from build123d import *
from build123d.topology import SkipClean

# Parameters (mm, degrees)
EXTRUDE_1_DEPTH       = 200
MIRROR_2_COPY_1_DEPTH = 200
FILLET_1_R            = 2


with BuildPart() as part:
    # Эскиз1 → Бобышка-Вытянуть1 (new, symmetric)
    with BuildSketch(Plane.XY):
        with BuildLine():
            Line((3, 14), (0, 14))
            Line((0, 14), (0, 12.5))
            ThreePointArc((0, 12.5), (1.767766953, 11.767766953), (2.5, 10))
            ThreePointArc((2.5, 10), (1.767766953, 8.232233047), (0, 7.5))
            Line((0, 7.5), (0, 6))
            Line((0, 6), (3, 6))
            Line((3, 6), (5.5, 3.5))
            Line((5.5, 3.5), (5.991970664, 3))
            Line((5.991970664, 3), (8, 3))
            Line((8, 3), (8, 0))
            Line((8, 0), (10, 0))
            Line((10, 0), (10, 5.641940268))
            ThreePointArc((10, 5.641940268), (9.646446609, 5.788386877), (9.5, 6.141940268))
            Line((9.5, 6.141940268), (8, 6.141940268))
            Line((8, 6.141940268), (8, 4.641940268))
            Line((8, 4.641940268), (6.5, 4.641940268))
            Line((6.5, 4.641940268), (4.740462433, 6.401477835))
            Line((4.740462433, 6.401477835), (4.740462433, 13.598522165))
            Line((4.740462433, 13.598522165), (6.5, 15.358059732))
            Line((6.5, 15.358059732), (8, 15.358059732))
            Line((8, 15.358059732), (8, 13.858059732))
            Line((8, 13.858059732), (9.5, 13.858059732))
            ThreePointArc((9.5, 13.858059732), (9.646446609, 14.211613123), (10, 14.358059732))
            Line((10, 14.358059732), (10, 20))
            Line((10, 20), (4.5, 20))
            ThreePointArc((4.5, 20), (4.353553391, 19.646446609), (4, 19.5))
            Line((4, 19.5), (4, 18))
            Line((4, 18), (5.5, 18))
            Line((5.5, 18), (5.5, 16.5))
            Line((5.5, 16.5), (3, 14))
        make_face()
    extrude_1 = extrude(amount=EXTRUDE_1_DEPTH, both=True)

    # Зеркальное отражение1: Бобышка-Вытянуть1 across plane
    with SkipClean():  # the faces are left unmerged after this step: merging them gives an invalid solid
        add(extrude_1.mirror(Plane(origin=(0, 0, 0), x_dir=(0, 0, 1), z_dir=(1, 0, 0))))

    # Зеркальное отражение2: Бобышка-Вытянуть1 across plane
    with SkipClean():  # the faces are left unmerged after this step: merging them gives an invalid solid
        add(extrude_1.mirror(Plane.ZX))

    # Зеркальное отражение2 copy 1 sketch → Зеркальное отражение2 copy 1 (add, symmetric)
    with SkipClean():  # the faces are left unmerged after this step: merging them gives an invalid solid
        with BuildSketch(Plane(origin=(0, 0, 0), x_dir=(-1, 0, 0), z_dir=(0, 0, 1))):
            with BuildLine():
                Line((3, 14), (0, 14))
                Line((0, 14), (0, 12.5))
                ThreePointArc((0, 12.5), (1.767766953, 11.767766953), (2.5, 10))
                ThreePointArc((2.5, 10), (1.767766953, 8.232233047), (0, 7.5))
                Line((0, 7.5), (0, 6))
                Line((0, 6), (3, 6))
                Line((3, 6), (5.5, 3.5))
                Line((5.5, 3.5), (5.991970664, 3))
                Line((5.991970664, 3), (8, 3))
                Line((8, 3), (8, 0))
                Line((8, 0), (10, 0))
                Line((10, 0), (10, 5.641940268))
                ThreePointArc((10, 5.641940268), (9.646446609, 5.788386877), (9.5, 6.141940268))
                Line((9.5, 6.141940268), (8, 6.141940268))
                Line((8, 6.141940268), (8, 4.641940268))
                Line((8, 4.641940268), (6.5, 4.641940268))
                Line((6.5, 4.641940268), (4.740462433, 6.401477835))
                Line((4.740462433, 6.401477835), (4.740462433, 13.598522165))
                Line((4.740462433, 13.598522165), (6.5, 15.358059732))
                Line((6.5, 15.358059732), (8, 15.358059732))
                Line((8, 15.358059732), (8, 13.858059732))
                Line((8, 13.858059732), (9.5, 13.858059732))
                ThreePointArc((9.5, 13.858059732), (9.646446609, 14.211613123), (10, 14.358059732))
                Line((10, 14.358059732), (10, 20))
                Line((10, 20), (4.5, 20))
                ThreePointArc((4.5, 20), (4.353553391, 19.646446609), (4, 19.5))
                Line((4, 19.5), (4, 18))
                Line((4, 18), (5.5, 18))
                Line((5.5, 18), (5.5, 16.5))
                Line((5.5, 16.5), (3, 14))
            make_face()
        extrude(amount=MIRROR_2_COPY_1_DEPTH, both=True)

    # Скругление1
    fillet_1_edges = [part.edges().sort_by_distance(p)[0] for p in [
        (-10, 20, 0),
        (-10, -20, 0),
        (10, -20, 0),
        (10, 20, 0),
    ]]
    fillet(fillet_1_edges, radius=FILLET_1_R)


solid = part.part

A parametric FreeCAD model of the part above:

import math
import FreeCAD as App
import Part
import Sketcher
from FreeCAD import Vector


def edges_at(feature, points):
    """Names of the edges that pass closest to the given points."""
    edges = feature.Shape.Edges
    near = lambda p: min(range(len(edges)), key=lambda i: edges[i].distToShape(Part.Vertex(*p))[0])
    return sorted({f"Edge{near(p) + 1}" for p in points})

doc = App.newDocument("Part")
body = doc.addObject("PartDesign::Body", "Body")

# Sketch on XY plane
sketch1 = body.newObject("Sketcher::SketchObject", "Sketch")
sketch1.AttachmentSupport = (doc.getObject("XY_Plane"), [""])
sketch1.MapMode = "FlatFace"
sketch1.addGeometry([
    Part.LineSegment(Vector(3, 14, 0), Vector(0, 14, 0)),  # 0
    Part.LineSegment(Vector(0, 14, 0), Vector(0, 12.5, 0)),  # 1
    Part.ArcOfCircle(Part.Circle(Vector(0, 10, 0), Vector(0, 0, 1), 2.5), math.radians(0), math.radians(90)),  # 2
    Part.ArcOfCircle(Part.Circle(Vector(0, 10, 0), Vector(0, 0, 1), 2.5), math.radians(-90), math.radians(0)),  # 3
    Part.LineSegment(Vector(0, 7.5, 0), Vector(0, 6, 0)),  # 4
    Part.LineSegment(Vector(0, 6, 0), Vector(3, 6, 0)),  # 5
    Part.LineSegment(Vector(3, 6, 0), Vector(5.5, 3.5, 0)),  # 6
    Part.LineSegment(Vector(5.5, 3.5, 0), Vector(5.99, 3, 0)),  # 7
    Part.LineSegment(Vector(5.99, 3, 0), Vector(8, 3, 0)),  # 8
    Part.LineSegment(Vector(8, 3, 0), Vector(8, 0, 0)),  # 9
    Part.LineSegment(Vector(8, 0, 0), Vector(10, 0, 0)),  # 10
    Part.LineSegment(Vector(10, 0, 0), Vector(10, 5.64, 0)),  # 11
    Part.ArcOfCircle(Part.Circle(Vector(10, 6.14, 0), Vector(0, 0, 1), 0.5), math.radians(180), math.radians(270)),  # 12
    Part.LineSegment(Vector(9.5, 6.14, 0), Vector(8, 6.14, 0)),  # 13
    Part.LineSegment(Vector(8, 6.14, 0), Vector(8, 4.64, 0)),  # 14
    Part.LineSegment(Vector(8, 4.64, 0), Vector(6.5, 4.64, 0)),  # 15
    Part.LineSegment(Vector(6.5, 4.64, 0), Vector(4.74, 6.4, 0)),  # 16
    Part.LineSegment(Vector(4.74, 6.4, 0), Vector(4.74, 13.6, 0)),  # 17
    Part.LineSegment(Vector(4.74, 13.6, 0), Vector(6.5, 15.36, 0)),  # 18
    Part.LineSegment(Vector(6.5, 15.36, 0), Vector(8, 15.36, 0)),  # 19
    Part.LineSegment(Vector(8, 15.36, 0), Vector(8, 13.86, 0)),  # 20
    Part.LineSegment(Vector(8, 13.86, 0), Vector(9.5, 13.86, 0)),  # 21
    Part.ArcOfCircle(Part.Circle(Vector(10, 13.86, 0), Vector(0, 0, 1), 0.5), math.radians(90), math.radians(180)),  # 22
    Part.LineSegment(Vector(10, 14.36, 0), Vector(10, 20, 0)),  # 23
    Part.LineSegment(Vector(10, 20, 0), Vector(4.5, 20, 0)),  # 24
    Part.ArcOfCircle(Part.Circle(Vector(4, 20, 0), Vector(0, 0, 1), 0.5), math.radians(-90), math.radians(0)),  # 25
    Part.LineSegment(Vector(4, 19.5, 0), Vector(4, 18, 0)),  # 26
    Part.LineSegment(Vector(4, 18, 0), Vector(5.5, 18, 0)),  # 27
    Part.LineSegment(Vector(5.5, 18, 0), Vector(5.5, 16.5, 0)),  # 28
    Part.LineSegment(Vector(5.5, 16.5, 0), Vector(3, 14, 0)),  # 29
], False)
sketch1.addConstraint([
    Sketcher.Constraint("Coincident", 0, 2, 1, 1),
    Sketcher.Constraint("Coincident", 1, 2, 2, 2),
    Sketcher.Constraint("Tangent", 2, 1, 3, 2),
    Sketcher.Constraint("Coincident", 3, 1, 4, 1),
    Sketcher.Constraint("Coincident", 4, 2, 5, 1),
    Sketcher.Constraint("Coincident", 5, 2, 6, 1),
    Sketcher.Constraint("Coincident", 6, 2, 7, 1),
    Sketcher.Constraint("Coincident", 7, 2, 8, 1),
    Sketcher.Constraint("Coincident", 8, 2, 9, 1),
    Sketcher.Constraint("Coincident", 9, 2, 10, 1),
    Sketcher.Constraint("Coincident", 10, 2, 11, 1),
    Sketcher.Constraint("Coincident", 11, 2, 12, 2),
    Sketcher.Constraint("Coincident", 12, 1, 13, 1),
    Sketcher.Constraint("Coincident", 13, 2, 14, 1),
    Sketcher.Constraint("Coincident", 14, 2, 15, 1),
    Sketcher.Constraint("Coincident", 15, 2, 16, 1),
    Sketcher.Constraint("Coincident", 16, 2, 17, 1),
    Sketcher.Constraint("Coincident", 17, 2, 18, 1),
    Sketcher.Constraint("Coincident", 18, 2, 19, 1),
    Sketcher.Constraint("Coincident", 19, 2, 20, 1),
    Sketcher.Constraint("Coincident", 20, 2, 21, 1),
    Sketcher.Constraint("Coincident", 21, 2, 22, 2),
    Sketcher.Constraint("Coincident", 22, 1, 23, 1),
    Sketcher.Constraint("Coincident", 23, 2, 24, 1),
    Sketcher.Constraint("Coincident", 24, 2, 25, 2),
    Sketcher.Constraint("Coincident", 25, 1, 26, 1),
    Sketcher.Constraint("Coincident", 26, 2, 27, 1),
    Sketcher.Constraint("Coincident", 27, 2, 28, 1),
    Sketcher.Constraint("Coincident", 28, 2, 29, 1),
    Sketcher.Constraint("Coincident", 29, 2, 0, 1),
    Sketcher.Constraint("Horizontal", 0),
    Sketcher.Constraint("Vertical", 1),
    Sketcher.Constraint("Vertical", 4),
    Sketcher.Constraint("Horizontal", 5),
    Sketcher.Constraint("Horizontal", 8),
    Sketcher.Constraint("Vertical", 9),
    Sketcher.Constraint("Horizontal", 10),
    Sketcher.Constraint("Vertical", 11),
    Sketcher.Constraint("Horizontal", 13),
    Sketcher.Constraint("Vertical", 14),
    Sketcher.Constraint("Horizontal", 15),
    Sketcher.Constraint("Vertical", 17),
    Sketcher.Constraint("Horizontal", 19),
    Sketcher.Constraint("Vertical", 20),
    Sketcher.Constraint("Horizontal", 21),
    Sketcher.Constraint("Vertical", 23),
    Sketcher.Constraint("Horizontal", 24),
    Sketcher.Constraint("Vertical", 26),
    Sketcher.Constraint("Horizontal", 27),
    Sketcher.Constraint("Vertical", 28),
    Sketcher.Constraint("Equal", 2, 3),
    Sketcher.Constraint("Equal", 12, 22),
    Sketcher.Constraint("Equal", 22, 25),
    Sketcher.Constraint("PointOnObject", 2, 3, -2),
    Sketcher.Constraint("PointOnObject", 0, 2, -2),
    Sketcher.Constraint("PointOnObject", 3, 1, -2),
    Sketcher.Constraint("PointOnObject", 9, 2, -1),
    Sketcher.Constraint("Parallel", 6, 16),
    Sketcher.Constraint("Perpendicular", 16, 18),
    Sketcher.Constraint("Parallel", 18, 29),
    Sketcher.Constraint("Horizontal", 3, 3, 2, 1),
    Sketcher.Constraint("Horizontal", 22, 3, 20, 2),
    Sketcher.Constraint("Horizontal", 25, 3, 23, 2),
    Sketcher.Constraint("Vertical", 12, 3, 22, 3),
    Sketcher.Constraint("Vertical", 22, 3, 10, 2),
    Sketcher.Constraint("Vertical", 9, 2, 13, 2),
    Sketcher.Constraint("Vertical", 15, 2, 18, 2),
    Sketcher.Constraint("Vertical", 14, 2, 19, 2),
    Sketcher.Constraint("Vertical", 11, 2, 22, 1),
    Sketcher.Constraint("Vertical", 6, 2, 27, 2),
    Sketcher.Constraint("Vertical", 5, 2, 29, 2),
    Sketcher.Constraint("Equal", 13, 15),
    Sketcher.Constraint("Equal", 21, 27),
    Sketcher.Constraint("Equal", 27, 1),
    Sketcher.Constraint("Equal", 1, 4),
    Sketcher.Constraint("Equal", 5, 9),
    Sketcher.Constraint("Equal", 4, 14),
    Sketcher.Constraint("Equal", 14, 20),
    Sketcher.Constraint("Equal", 11, 23),
    Sketcher.Constraint("Equal", 20, 26),
    Sketcher.Constraint("Equal", 26, 28),
    Sketcher.Constraint("Equal", 16, 18),
    Sketcher.Constraint("Radius", 2, 2.5),
    Sketcher.Constraint("Radius", 12, 0.5),
    Sketcher.Constraint("DistanceX", 0, 2, 0, 1, 3.0),
    Sketcher.Constraint("DistanceX", 10, 1, 10, 2, 2.0),
    Sketcher.Constraint("DistanceX", 24, 2, 24, 1, 5.5),
    Sketcher.Constraint("DistanceY", -1, 1, 2, 3, 10.0),
    Sketcher.Constraint("DistanceX", -1, 1, 12, 3, 10.0),
    Sketcher.Constraint("DistanceY", -1, 1, 25, 3, 20.0),
    Sketcher.Constraint("DistanceY", 14, 2, 11, 2, 1.0),
    Sketcher.Constraint("DistanceX", 8, 1, 8, 2, 2.008029),
    Sketcher.Constraint("DistanceY", 11, 1, 11, 2, 5.64194),
    Sketcher.Constraint("Distance", 16, 2.488362),
])
pad1 = body.newObject("PartDesign::Pad", "Pad")
pad1.Profile = sketch1
pad1.Length = 400
pad1.Midplane = True
doc.recompute()

mirrored = body.newObject("PartDesign::Mirrored", "Mirrored")
mirrored.Originals = [pad1]
mirrored.MirrorPlane = (doc.getObject("YZ_Plane"), [""])
body.Tip = mirrored
doc.recompute()

mirrored2 = body.newObject("PartDesign::Mirrored", "Mirrored001")
mirrored2.Originals = [pad1]
mirrored2.MirrorPlane = (doc.getObject("XZ_Plane"), [""])
body.Tip = mirrored2

# Sketch on XY plane
sketch2 = body.newObject("Sketcher::SketchObject", "Sketch001")
sketch2.AttachmentSupport = (doc.getObject("XY_Plane"), [""])
sketch2.MapMode = "FlatFace"
sketch2.addGeometry([
    Part.LineSegment(Vector(-3, -14, 0), Vector(0, -14, 0)),  # 0
    Part.LineSegment(Vector(0, -14, 0), Vector(0, -12.5, 0)),  # 1
    Part.ArcOfCircle(Part.Circle(Vector(0, -10, 0), Vector(0, 0, 1), 2.5), math.radians(180), math.radians(270)),  # 2
    Part.ArcOfCircle(Part.Circle(Vector(0, -10, 0), Vector(0, 0, 1), 2.5), math.radians(90), math.radians(180)),  # 3
    Part.LineSegment(Vector(0, -7.5, 0), Vector(0, -6, 0)),  # 4
    Part.LineSegment(Vector(0, -6, 0), Vector(-3, -6, 0)),  # 5
    Part.LineSegment(Vector(-3, -6, 0), Vector(-5.5, -3.5, 0)),  # 6
    Part.LineSegment(Vector(-5.5, -3.5, 0), Vector(-5.99, -3, 0)),  # 7
    Part.LineSegment(Vector(-5.99, -3, 0), Vector(-8, -3, 0)),  # 8
    Part.LineSegment(Vector(-8, -3, 0), Vector(-8, 0, 0)),  # 9
    Part.LineSegment(Vector(-8, 0, 0), Vector(-10, 0, 0)),  # 10
    Part.LineSegment(Vector(-10, 0, 0), Vector(-10, -5.64, 0)),  # 11
    Part.ArcOfCircle(Part.Circle(Vector(-10, -6.14, 0), Vector(0, 0, 1), 0.5), math.radians(0), math.radians(90)),  # 12
    Part.LineSegment(Vector(-9.5, -6.14, 0), Vector(-8, -6.14, 0)),  # 13
    Part.LineSegment(Vector(-8, -6.14, 0), Vector(-8, -4.64, 0)),  # 14
    Part.LineSegment(Vector(-8, -4.64, 0), Vector(-6.5, -4.64, 0)),  # 15
    Part.LineSegment(Vector(-6.5, -4.64, 0), Vector(-4.74, -6.4, 0)),  # 16
    Part.LineSegment(Vector(-4.74, -6.4, 0), Vector(-4.74, -13.6, 0)),  # 17
    Part.LineSegment(Vector(-4.74, -13.6, 0), Vector(-6.5, -15.36, 0)),  # 18
    Part.LineSegment(Vector(-6.5, -15.36, 0), Vector(-8, -15.36, 0)),  # 19
    Part.LineSegment(Vector(-8, -15.36, 0), Vector(-8, -13.86, 0)),  # 20
    Part.LineSegment(Vector(-8, -13.86, 0), Vector(-9.5, -13.86, 0)),  # 21
    Part.ArcOfCircle(Part.Circle(Vector(-10, -13.86, 0), Vector(0, 0, 1), 0.5), math.radians(-90), math.radians(0)),  # 22
    Part.LineSegment(Vector(-10, -14.36, 0), Vector(-10, -20, 0)),  # 23
    Part.LineSegment(Vector(-10, -20, 0), Vector(-4.5, -20, 0)),  # 24
    Part.ArcOfCircle(Part.Circle(Vector(-4, -20, 0), Vector(0, 0, 1), 0.5), math.radians(90), math.radians(180)),  # 25
    Part.LineSegment(Vector(-4, -19.5, 0), Vector(-4, -18, 0)),  # 26
    Part.LineSegment(Vector(-4, -18, 0), Vector(-5.5, -18, 0)),  # 27
    Part.LineSegment(Vector(-5.5, -18, 0), Vector(-5.5, -16.5, 0)),  # 28
    Part.LineSegment(Vector(-5.5, -16.5, 0), Vector(-3, -14, 0)),  # 29
], False)
sketch2.addConstraint([
    Sketcher.Constraint("Coincident", 0, 2, 1, 1),
    Sketcher.Constraint("Coincident", 1, 2, 2, 2),
    Sketcher.Constraint("Tangent", 2, 1, 3, 2),
    Sketcher.Constraint("Coincident", 3, 1, 4, 1),
    Sketcher.Constraint("Coincident", 4, 2, 5, 1),
    Sketcher.Constraint("Coincident", 5, 2, 6, 1),
    Sketcher.Constraint("Coincident", 6, 2, 7, 1),
    Sketcher.Constraint("Coincident", 7, 2, 8, 1),
    Sketcher.Constraint("Coincident", 8, 2, 9, 1),
    Sketcher.Constraint("Coincident", 9, 2, 10, 1),
    Sketcher.Constraint("Coincident", 10, 2, 11, 1),
    Sketcher.Constraint("Coincident", 11, 2, 12, 2),
    Sketcher.Constraint("Coincident", 12, 1, 13, 1),
    Sketcher.Constraint("Coincident", 13, 2, 14, 1),
    Sketcher.Constraint("Coincident", 14, 2, 15, 1),
    Sketcher.Constraint("Coincident", 15, 2, 16, 1),
    Sketcher.Constraint("Coincident", 16, 2, 17, 1),
    Sketcher.Constraint("Coincident", 17, 2, 18, 1),
    Sketcher.Constraint("Coincident", 18, 2, 19, 1),
    Sketcher.Constraint("Coincident", 19, 2, 20, 1),
    Sketcher.Constraint("Coincident", 20, 2, 21, 1),
    Sketcher.Constraint("Coincident", 21, 2, 22, 2),
    Sketcher.Constraint("Coincident", 22, 1, 23, 1),
    Sketcher.Constraint("Coincident", 23, 2, 24, 1),
    Sketcher.Constraint("Coincident", 24, 2, 25, 2),
    Sketcher.Constraint("Coincident", 25, 1, 26, 1),
    Sketcher.Constraint("Coincident", 26, 2, 27, 1),
    Sketcher.Constraint("Coincident", 27, 2, 28, 1),
    Sketcher.Constraint("Coincident", 28, 2, 29, 1),
    Sketcher.Constraint("Coincident", 29, 2, 0, 1),
    Sketcher.Constraint("Horizontal", 0),
    Sketcher.Constraint("Vertical", 1),
    Sketcher.Constraint("Vertical", 4),
    Sketcher.Constraint("Horizontal", 5),
    Sketcher.Constraint("Horizontal", 8),
    Sketcher.Constraint("Vertical", 9),
    Sketcher.Constraint("Horizontal", 10),
    Sketcher.Constraint("Vertical", 11),
    Sketcher.Constraint("Horizontal", 13),
    Sketcher.Constraint("Vertical", 14),
    Sketcher.Constraint("Horizontal", 15),
    Sketcher.Constraint("Vertical", 17),
    Sketcher.Constraint("Horizontal", 19),
    Sketcher.Constraint("Vertical", 20),
    Sketcher.Constraint("Horizontal", 21),
    Sketcher.Constraint("Vertical", 23),
    Sketcher.Constraint("Horizontal", 24),
    Sketcher.Constraint("Vertical", 26),
    Sketcher.Constraint("Horizontal", 27),
    Sketcher.Constraint("Vertical", 28),
    Sketcher.Constraint("Equal", 2, 3),
    Sketcher.Constraint("Equal", 12, 22),
    Sketcher.Constraint("Equal", 22, 25),
    Sketcher.Constraint("PointOnObject", 2, 3, -2),
    Sketcher.Constraint("PointOnObject", 0, 2, -2),
    Sketcher.Constraint("PointOnObject", 3, 1, -2),
    Sketcher.Constraint("PointOnObject", 9, 2, -1),
    Sketcher.Constraint("Parallel", 6, 16),
    Sketcher.Constraint("Perpendicular", 16, 18),
    Sketcher.Constraint("Parallel", 18, 29),
    Sketcher.Constraint("Horizontal", 3, 3, 2, 1),
    Sketcher.Constraint("Horizontal", 22, 3, 20, 2),
    Sketcher.Constraint("Horizontal", 25, 3, 23, 2),
    Sketcher.Constraint("Vertical", 12, 3, 22, 3),
    Sketcher.Constraint("Vertical", 22, 3, 10, 2),
    Sketcher.Constraint("Vertical", 9, 2, 13, 2),
    Sketcher.Constraint("Vertical", 15, 2, 18, 2),
    Sketcher.Constraint("Vertical", 14, 2, 19, 2),
    Sketcher.Constraint("Vertical", 11, 2, 22, 1),
    Sketcher.Constraint("Vertical", 6, 2, 27, 2),
    Sketcher.Constraint("Vertical", 5, 2, 29, 2),
    Sketcher.Constraint("Equal", 13, 15),
    Sketcher.Constraint("Equal", 21, 27),
    Sketcher.Constraint("Equal", 27, 1),
    Sketcher.Constraint("Equal", 1, 4),
    Sketcher.Constraint("Equal", 5, 9),
    Sketcher.Constraint("Equal", 4, 14),
    Sketcher.Constraint("Equal", 14, 20),
    Sketcher.Constraint("Equal", 11, 23),
    Sketcher.Constraint("Equal", 20, 26),
    Sketcher.Constraint("Equal", 26, 28),
    Sketcher.Constraint("Equal", 16, 18),
    Sketcher.Constraint("Radius", 2, 2.5),
    Sketcher.Constraint("Radius", 12, 0.5),
    Sketcher.Constraint("DistanceX", 0, 1, 0, 2, 3.0),
    Sketcher.Constraint("DistanceX", 10, 2, 10, 1, 2.0),
    Sketcher.Constraint("DistanceX", 24, 1, 24, 2, 5.5),
    Sketcher.Constraint("DistanceY", 2, 3, -1, 1, 10.0),
    Sketcher.Constraint("DistanceX", 12, 3, -1, 1, 10.0),
    Sketcher.Constraint("DistanceY", 25, 3, -1, 1, 20.0),
    Sketcher.Constraint("DistanceY", 11, 2, 14, 2, 1.0),
    Sketcher.Constraint("DistanceX", 8, 2, 8, 1, 2.008029),
    Sketcher.Constraint("DistanceY", 11, 2, 11, 1, 5.64194),
    Sketcher.Constraint("Distance", 16, 2.488362),
])
pad2 = body.newObject("PartDesign::Pad", "Pad001")
pad2.Profile = sketch2
pad2.Length = 400
pad2.Midplane = True
doc.recompute()

fillet = body.newObject("PartDesign::Fillet", "Fillet")
fillet.Base = (pad2, edges_at(pad2, [
    (-10, 20, 0),
    (-10, -20, 0),
    (10, -20, 0),
    (10, 20, 0),
]))
fillet.Radius = 2

doc.recompute()
